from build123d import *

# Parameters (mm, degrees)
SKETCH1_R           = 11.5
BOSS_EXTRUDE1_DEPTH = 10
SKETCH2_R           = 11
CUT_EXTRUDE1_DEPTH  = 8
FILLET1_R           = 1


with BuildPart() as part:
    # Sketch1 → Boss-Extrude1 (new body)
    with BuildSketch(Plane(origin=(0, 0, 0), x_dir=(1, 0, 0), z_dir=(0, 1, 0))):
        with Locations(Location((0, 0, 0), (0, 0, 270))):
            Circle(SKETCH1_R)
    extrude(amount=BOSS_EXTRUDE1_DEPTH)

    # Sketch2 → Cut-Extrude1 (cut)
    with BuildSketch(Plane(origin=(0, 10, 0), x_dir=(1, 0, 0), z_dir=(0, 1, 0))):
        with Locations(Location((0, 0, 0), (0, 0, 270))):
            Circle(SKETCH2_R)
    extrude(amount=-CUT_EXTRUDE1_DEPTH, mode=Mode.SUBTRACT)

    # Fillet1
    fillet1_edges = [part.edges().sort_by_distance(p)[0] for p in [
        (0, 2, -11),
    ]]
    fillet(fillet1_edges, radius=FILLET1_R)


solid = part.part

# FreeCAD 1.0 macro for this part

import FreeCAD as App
import Part
import Sketcher
from FreeCAD import Vector


def edges_at(feature, points):
    """Names of the edges that pass closest to the given points."""
    edges = feature.Shape.Edges
    near = lambda p: min(range(len(edges)), key=lambda i: edges[i].distToShape(Part.Vertex(*p))[0])
    return sorted({f"Edge{near(p) + 1}" for p in points})

doc = App.newDocument("Part")
body = doc.addObject("PartDesign::Body", "Body")

# Sketch on XZ plane
sketch1 = body.newObject("Sketcher::SketchObject", "Sketch")
sketch1.AttachmentSupport = (doc.getObject("XZ_Plane"), [""])
sketch1.MapMode = "FlatFace"
sketch1.addGeometry(Part.Circle(Vector(0, 0, 0), Vector(0, 0, 1), 12), False)
sketch1.addConstraint(Sketcher.Constraint("Coincident", 0, 3, -1, 1))
sketch1.addConstraint(Sketcher.Constraint("Diameter", 0, 23.0))
pad1 = body.newObject("PartDesign::Pad", "Pad")
pad1.Profile = sketch1
pad1.Length = 10
pad1.Reversed = True

# Sketch on XZ plane
sketch2 = body.newObject("Sketcher::SketchObject", "Sketch001")
sketch2.AttachmentSupport = (doc.getObject("XZ_Plane"), [""])
sketch2.MapMode = "FlatFace"
sketch2.AttachmentOffset = App.Placement(Vector(0, 0, -10), App.Rotation())
sketch2.addGeometry(Part.Circle(Vector(0, 0, 0), Vector(0, 0, 1), 11), False)
sketch2.addConstraint(Sketcher.Constraint("Coincident", 0, 3, -1, 1))
sketch2.addConstraint(Sketcher.Constraint("Diameter", 0, 22.0))
pocket1 = body.newObject("PartDesign::Pocket", "Pocket")
pocket1.Profile = sketch2
pocket1.Length = 8
pocket1.Reversed = True
doc.recompute()

fillet = body.newObject("PartDesign::Fillet", "Fillet")
fillet.Base = (pocket1, edges_at(pocket1, [(0, 2, -11)]))
fillet.Radius = 1

doc.recompute()
